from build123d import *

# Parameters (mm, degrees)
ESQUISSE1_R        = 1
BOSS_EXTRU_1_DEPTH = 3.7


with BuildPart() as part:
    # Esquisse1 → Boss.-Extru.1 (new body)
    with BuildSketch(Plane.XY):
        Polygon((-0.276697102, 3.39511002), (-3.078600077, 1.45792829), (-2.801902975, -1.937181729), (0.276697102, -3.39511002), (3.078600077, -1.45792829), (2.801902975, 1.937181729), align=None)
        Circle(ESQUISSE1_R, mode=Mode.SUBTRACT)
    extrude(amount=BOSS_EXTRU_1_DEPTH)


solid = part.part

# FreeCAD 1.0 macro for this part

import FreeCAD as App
import Part
import Sketcher
from FreeCAD import Vector


def add_polygon(sketch, points):
    """Adds a closed chain of lines whose ends are joined by coincident constraints."""
    first, n = sketch.GeometryCount, len(points)
    for a, b in zip(points, points[1:] + points[:1]):
        sketch.addGeometry(Part.LineSegment(App.Vector(*a, 0), App.Vector(*b, 0)), False)
    for i in range(n):
        sketch.addConstraint(Sketcher.Constraint("Coincident", first + i, 2, first + (i + 1) % n, 1))

doc = App.newDocument("Part")
params = doc.addObject("Spreadsheet::Sheet", "Params")
for row, (alias, value) in enumerate([
    ("sketch1_diameter", "2 mm"),
    ("pad1_length", "3.7 mm"),
], start=1):
    params.set(f"A{row}", alias)
    params.set(f"B{row}", "=" + value)
    params.setAlias(f"B{row}", alias)

body = doc.addObject("PartDesign::Body", "Body")

# Sketch on XY plane
sketch1 = body.newObject("Sketcher::SketchObject", "Sketch")
sketch1.AttachmentSupport = (doc.getObject("XY_Plane"), [""])
sketch1.MapMode = "FlatFace"
add_polygon(sketch1, [(-0.3, 3.4), (-3.1, 1.5), (-2.8, -1.9), (0.3, -3.4), (3.1, -1.5), (2.8, 1.9)])  # lines 0-5
sketch1.addGeometry(Part.Circle(Vector(0, 0, 0), Vector(0, 0, 1), 1), False)  # 6
sketch1.addConstraint([
    Sketcher.Constraint("Coincident", 6, 3, -1, 1),
    Sketcher.Constraint("Symmetric", 0, 2, 3, 2, -1, 1),
    Sketcher.Constraint("Symmetric", 1, 2, 4, 2, -1, 1),
    Sketcher.Constraint("Symmetric", 2, 2, 5, 2, -1, 1),
    Sketcher.Constraint("Equal", 0, 1),
    Sketcher.Constraint("Equal", 1, 2),
    Sketcher.Constraint("Diameter", 6, 2.0),
    Sketcher.Constraint("DistanceX", 0, 2, -1, 1, 3.0786),
    Sketcher.Constraint("DistanceX", 1, 2, 2, 2, 3.0786),
    Sketcher.Constraint("DistanceY", -1, 1, 0, 2, 1.457928),
    Sketcher.Constraint("DistanceY", 1, 2, -1, 1, 1.937182),
])
sketch1.setExpression("Constraints[12]", "Params.sketch1_diameter")
pad1 = body.newObject("PartDesign::Pad", "Pad")
pad1.Profile = sketch1
pad1.setExpression("Length", "Params.pad1_length")

doc.recompute()
